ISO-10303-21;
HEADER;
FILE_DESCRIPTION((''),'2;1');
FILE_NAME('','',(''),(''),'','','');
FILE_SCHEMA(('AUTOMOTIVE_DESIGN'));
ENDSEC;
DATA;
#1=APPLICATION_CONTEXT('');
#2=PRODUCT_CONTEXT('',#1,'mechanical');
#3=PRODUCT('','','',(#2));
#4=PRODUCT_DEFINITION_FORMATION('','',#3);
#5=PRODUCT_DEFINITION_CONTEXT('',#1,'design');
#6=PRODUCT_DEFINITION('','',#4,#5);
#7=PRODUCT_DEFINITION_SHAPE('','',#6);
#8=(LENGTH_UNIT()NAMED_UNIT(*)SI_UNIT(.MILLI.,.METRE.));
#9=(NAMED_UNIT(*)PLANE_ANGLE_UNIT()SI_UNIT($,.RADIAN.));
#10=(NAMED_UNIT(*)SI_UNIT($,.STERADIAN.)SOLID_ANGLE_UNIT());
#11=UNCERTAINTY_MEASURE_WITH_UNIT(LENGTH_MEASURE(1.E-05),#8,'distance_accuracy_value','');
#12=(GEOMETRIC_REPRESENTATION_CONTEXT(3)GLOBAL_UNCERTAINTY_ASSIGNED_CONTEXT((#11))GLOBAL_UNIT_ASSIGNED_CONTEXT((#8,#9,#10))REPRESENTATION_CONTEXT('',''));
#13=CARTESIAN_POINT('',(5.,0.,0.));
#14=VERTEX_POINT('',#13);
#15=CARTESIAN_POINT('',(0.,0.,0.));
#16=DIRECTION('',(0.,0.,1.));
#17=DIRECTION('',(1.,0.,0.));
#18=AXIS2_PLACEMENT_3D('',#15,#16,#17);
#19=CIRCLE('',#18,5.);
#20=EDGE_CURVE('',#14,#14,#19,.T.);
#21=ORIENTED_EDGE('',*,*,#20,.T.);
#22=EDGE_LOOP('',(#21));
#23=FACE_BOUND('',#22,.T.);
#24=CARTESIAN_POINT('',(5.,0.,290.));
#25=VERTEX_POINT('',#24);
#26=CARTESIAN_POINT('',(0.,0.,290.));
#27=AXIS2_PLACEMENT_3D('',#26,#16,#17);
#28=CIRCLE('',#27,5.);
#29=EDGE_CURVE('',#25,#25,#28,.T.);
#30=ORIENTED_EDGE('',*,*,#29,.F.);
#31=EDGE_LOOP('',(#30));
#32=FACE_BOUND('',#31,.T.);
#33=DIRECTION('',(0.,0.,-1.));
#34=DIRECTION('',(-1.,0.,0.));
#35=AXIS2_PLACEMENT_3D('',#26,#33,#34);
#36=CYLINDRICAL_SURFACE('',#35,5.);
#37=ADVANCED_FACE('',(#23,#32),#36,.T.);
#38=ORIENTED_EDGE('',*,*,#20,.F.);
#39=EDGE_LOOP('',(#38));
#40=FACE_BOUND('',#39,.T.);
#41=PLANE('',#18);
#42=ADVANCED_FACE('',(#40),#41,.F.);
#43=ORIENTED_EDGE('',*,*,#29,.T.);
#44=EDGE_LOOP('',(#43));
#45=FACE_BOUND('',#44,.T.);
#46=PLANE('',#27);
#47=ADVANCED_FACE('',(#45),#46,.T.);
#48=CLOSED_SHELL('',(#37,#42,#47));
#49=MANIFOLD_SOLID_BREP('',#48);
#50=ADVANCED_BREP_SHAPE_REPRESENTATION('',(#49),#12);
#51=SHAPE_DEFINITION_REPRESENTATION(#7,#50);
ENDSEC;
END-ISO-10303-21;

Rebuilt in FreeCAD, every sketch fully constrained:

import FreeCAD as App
import Part
import Sketcher
from FreeCAD import Vector

doc = App.newDocument("Part")
body = doc.addObject("PartDesign::Body", "Body")

sketch1 = body.newObject("Sketcher::SketchObject", "Sketch")
sketch1.AttachmentSupport = (doc.getObject("XY_Plane"), [""])
sketch1.MapMode = "FlatFace"
sketch1.addGeometry(Part.Circle(Vector(0, 0, 0), Vector(0, 0, 1), 5), False)
sketch1.addConstraint(Sketcher.Constraint("Coincident", 0, 3, -1, 1))
sketch1.addConstraint(Sketcher.Constraint("Diameter", 0, 10.0))
pad1 = body.newObject("PartDesign::Pad", "Pad")
pad1.Profile = sketch1
pad1.Length = 290

doc.recompute()
